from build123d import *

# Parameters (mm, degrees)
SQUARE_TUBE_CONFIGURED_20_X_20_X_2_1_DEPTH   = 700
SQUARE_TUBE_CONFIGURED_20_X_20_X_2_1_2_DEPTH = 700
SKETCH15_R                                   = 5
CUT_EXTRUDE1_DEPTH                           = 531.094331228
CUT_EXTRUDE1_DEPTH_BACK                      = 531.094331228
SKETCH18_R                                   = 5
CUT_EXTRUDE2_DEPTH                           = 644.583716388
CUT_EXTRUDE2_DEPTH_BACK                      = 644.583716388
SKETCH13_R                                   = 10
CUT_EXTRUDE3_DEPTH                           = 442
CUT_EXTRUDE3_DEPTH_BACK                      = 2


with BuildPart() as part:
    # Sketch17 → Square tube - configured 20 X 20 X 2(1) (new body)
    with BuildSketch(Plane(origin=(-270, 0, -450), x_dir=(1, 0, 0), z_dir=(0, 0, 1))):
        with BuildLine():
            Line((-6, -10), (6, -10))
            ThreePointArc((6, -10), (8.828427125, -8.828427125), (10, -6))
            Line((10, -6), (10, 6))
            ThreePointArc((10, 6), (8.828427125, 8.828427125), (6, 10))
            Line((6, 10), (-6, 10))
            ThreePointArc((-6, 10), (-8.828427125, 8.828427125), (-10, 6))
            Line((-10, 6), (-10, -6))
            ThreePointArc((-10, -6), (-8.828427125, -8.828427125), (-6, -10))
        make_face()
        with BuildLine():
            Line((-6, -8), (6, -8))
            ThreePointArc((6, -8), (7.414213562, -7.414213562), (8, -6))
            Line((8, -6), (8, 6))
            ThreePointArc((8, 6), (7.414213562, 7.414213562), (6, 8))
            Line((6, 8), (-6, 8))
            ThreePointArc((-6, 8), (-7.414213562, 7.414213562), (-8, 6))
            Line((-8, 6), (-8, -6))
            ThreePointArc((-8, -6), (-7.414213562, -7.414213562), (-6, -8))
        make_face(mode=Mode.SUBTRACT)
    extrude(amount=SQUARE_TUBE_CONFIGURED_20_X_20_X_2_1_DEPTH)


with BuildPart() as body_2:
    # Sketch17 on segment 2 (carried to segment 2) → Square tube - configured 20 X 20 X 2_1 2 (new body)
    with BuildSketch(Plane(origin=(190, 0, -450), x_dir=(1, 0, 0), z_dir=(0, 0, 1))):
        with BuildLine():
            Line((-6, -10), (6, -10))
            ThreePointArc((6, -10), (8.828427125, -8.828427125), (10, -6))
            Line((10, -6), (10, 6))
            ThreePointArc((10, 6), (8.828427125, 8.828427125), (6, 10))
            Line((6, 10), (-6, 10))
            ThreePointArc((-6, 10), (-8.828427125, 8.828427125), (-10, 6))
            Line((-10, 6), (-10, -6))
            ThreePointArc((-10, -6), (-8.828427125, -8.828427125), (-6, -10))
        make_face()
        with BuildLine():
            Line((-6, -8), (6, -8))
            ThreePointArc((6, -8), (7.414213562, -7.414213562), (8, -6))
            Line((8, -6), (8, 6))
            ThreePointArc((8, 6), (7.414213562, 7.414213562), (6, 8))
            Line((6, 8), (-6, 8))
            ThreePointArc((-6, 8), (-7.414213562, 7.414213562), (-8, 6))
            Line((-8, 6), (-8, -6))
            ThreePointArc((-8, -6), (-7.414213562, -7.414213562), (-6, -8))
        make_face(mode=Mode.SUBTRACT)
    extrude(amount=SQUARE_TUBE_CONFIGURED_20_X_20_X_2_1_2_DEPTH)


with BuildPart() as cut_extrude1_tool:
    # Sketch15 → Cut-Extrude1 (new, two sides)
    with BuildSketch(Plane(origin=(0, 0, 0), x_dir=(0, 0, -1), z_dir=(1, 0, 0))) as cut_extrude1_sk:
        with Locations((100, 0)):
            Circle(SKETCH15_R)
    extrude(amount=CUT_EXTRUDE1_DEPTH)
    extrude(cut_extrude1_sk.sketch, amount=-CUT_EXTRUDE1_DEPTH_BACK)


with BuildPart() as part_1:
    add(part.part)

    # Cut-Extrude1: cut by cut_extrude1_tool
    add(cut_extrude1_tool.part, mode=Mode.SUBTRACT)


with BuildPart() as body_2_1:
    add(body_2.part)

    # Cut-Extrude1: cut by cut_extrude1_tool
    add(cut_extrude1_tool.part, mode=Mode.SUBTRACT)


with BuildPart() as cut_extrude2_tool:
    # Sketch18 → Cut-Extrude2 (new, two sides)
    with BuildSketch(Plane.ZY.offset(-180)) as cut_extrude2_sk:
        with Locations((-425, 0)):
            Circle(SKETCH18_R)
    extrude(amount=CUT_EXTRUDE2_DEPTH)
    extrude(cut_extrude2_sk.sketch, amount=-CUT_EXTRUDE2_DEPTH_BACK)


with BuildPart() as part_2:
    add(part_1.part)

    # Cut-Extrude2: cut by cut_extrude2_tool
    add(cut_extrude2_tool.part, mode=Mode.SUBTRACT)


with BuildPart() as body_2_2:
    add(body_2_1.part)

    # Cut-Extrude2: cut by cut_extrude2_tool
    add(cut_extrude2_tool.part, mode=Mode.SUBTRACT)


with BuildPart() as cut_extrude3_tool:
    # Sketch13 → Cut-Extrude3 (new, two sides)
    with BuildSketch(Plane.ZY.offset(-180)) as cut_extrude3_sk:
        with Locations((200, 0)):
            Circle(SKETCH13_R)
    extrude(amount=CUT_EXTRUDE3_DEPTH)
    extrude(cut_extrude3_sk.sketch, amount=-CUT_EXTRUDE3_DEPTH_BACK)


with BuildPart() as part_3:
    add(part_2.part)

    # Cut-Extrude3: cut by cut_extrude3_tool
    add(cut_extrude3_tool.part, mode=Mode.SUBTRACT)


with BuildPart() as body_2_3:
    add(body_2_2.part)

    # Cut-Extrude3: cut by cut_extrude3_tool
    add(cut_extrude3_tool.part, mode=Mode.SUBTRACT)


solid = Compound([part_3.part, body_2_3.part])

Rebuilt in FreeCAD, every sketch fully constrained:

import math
import FreeCAD as App
import Part
import Sketcher
Q = App.Units.Quantity

doc = App.newDocument("Part")
body = doc.addObject("PartDesign::Body", "Body")

# Sketch on XY plane
sketch1 = body.newObject("Sketcher::SketchObject", "Sketch")
sketch1.AttachmentSupport = (doc.getObject("XY_Plane"), [""])
sketch1.MapMode = "FlatFace"
sketch1.AttachmentOffset = App.Placement(App.Vector(0, 0, -450), App.Rotation())
sketch1.addGeometry([
    Part.LineSegment(App.Vector(-276, -10, 0), App.Vector(-264, -10, 0)),  # 0
    Part.ArcOfCircle(Part.Circle(App.Vector(-264, -6, 0), App.Vector(0, 0, 1), 4), math.radians(-90), math.radians(0)),  # 1
    Part.LineSegment(App.Vector(-260, -6, 0), App.Vector(-260, 6, 0)),  # 2
    Part.ArcOfCircle(Part.Circle(App.Vector(-264, 6, 0), App.Vector(0, 0, 1), 4), math.radians(0), math.radians(90)),  # 3
    Part.LineSegment(App.Vector(-264, 10, 0), App.Vector(-276, 10, 0)),  # 4
    Part.ArcOfCircle(Part.Circle(App.Vector(-276, 6, 0), App.Vector(0, 0, 1), 4), math.radians(90), math.radians(180)),  # 5
    Part.LineSegment(App.Vector(-280, 6, 0), App.Vector(-280, -6, 0)),  # 6
    Part.ArcOfCircle(Part.Circle(App.Vector(-276, -6, 0), App.Vector(0, 0, 1), 4), math.radians(180), math.radians(270)),  # 7
    Part.LineSegment(App.Vector(-264, -8, 0), App.Vector(-276, -8, 0)),  # 8
    Part.ArcOfCircle(Part.Circle(App.Vector(-276, -6, 0), App.Vector(0, 0, 1), 2), math.radians(-180), math.radians(-90)),  # 9
    Part.LineSegment(App.Vector(-278, -6, 0), App.Vector(-278, 6, 0)),  # 10
    Part.ArcOfCircle(Part.Circle(App.Vector(-276, 6, 0), App.Vector(0, 0, 1), 2), math.radians(90), math.radians(180)),  # 11
    Part.LineSegment(App.Vector(-276, 8, 0), App.Vector(-264, 8, 0)),  # 12
    Part.ArcOfCircle(Part.Circle(App.Vector(-264, 6, 0), App.Vector(0, 0, 1), 2), math.radians(0), math.radians(90)),  # 13
    Part.LineSegment(App.Vector(-262, 6, 0), App.Vector(-262, -6, 0)),  # 14
    Part.ArcOfCircle(Part.Circle(App.Vector(-264, -6, 0), App.Vector(0, 0, 1), 2), math.radians(-90), math.radians(0)),  # 15
], False)
sketch1.addConstraint([
    Sketcher.Constraint("Tangent", 0, 2, 1, 1),
    Sketcher.Constraint("Tangent", 1, 2, 2, 1),
    Sketcher.Constraint("Tangent", 2, 2, 3, 1),
    Sketcher.Constraint("Tangent", 3, 2, 4, 1),
    Sketcher.Constraint("Tangent", 4, 2, 5, 1),
    Sketcher.Constraint("Tangent", 5, 2, 6, 1),
    Sketcher.Constraint("Tangent", 6, 2, 7, 1),
    Sketcher.Constraint("Tangent", 7, 2, 0, 1),
    Sketcher.Constraint("Tangent", 8, 2, 9, 2),
    Sketcher.Constraint("Tangent", 9, 1, 10, 1),
    Sketcher.Constraint("Tangent", 10, 2, 11, 2),
    Sketcher.Constraint("Tangent", 11, 1, 12, 1),
    Sketcher.Constraint("Tangent", 12, 2, 13, 2),
    Sketcher.Constraint("Tangent", 13, 1, 14, 1),
    Sketcher.Constraint("Tangent", 14, 2, 15, 2),
    Sketcher.Constraint("Tangent", 15, 1, 8, 1),
    Sketcher.Constraint("Horizontal", 0),
    Sketcher.Constraint("Vertical", 2),
    Sketcher.Constraint("Horizontal", 4),
    Sketcher.Constraint("Vertical", 6),
    Sketcher.Constraint("Horizontal", 8),
    Sketcher.Constraint("Vertical", 10),
    Sketcher.Constraint("Horizontal", 12),
    Sketcher.Constraint("Vertical", 14),
    Sketcher.Constraint("Coincident", 9, 3, 7, 3),
    Sketcher.Constraint("Coincident", 11, 3, 5, 3),
    Sketcher.Constraint("Coincident", 13, 3, 3, 3),
    Sketcher.Constraint("Equal", 1, 3),
    Sketcher.Constraint("Equal", 3, 5),
    Sketcher.Constraint("Equal", 5, 7),
    Sketcher.Constraint("Equal", 13, 15),
    Sketcher.Constraint("Equal", 12, 2),
    Sketcher.Constraint("Radius", 1, Q("4 mm")),
    Sketcher.Constraint("Radius", 9, Q("2 mm")),
    Sketcher.Constraint("DistanceX", 0, 1, 0, 2, Q("12 mm")),
    Sketcher.Constraint("DistanceX", 1, 3, -1, 1, Q("264 mm")),
    Sketcher.Constraint("DistanceY", 1, 3, -1, 1, Q("6 mm")),
])
pad1 = body.newObject("PartDesign::Pad", "Pad")
pad1.Profile = sketch1
pad1.Length = 700
body2 = doc.addObject("PartDesign::Body", "Body001")

# Sketch on XY plane
sketch2 = body2.newObject("Sketcher::SketchObject", "Sketch001")
sketch2.AttachmentSupport = (doc.getObject("XY_Plane001"), [""])
sketch2.MapMode = "FlatFace"
sketch2.AttachmentOffset = App.Placement(App.Vector(0, 0, -450), App.Rotation())
sketch2.addGeometry([
    Part.LineSegment(App.Vector(184, -10, 0), App.Vector(196, -10, 0)),  # 0
    Part.ArcOfCircle(Part.Circle(App.Vector(196, -6, 0), App.Vector(0, 0, 1), 4), math.radians(-90), math.radians(0)),  # 1
    Part.LineSegment(App.Vector(200, -6, 0), App.Vector(200, 6, 0)),  # 2
    Part.ArcOfCircle(Part.Circle(App.Vector(196, 6, 0), App.Vector(0, 0, 1), 4), math.radians(0), math.radians(90)),  # 3
    Part.LineSegment(App.Vector(196, 10, 0), App.Vector(184, 10, 0)),  # 4
    Part.ArcOfCircle(Part.Circle(App.Vector(184, 6, 0), App.Vector(0, 0, 1), 4), math.radians(90), math.radians(180)),  # 5
    Part.LineSegment(App.Vector(180, 6, 0), App.Vector(180, -6, 0)),  # 6
    Part.ArcOfCircle(Part.Circle(App.Vector(184, -6, 0), App.Vector(0, 0, 1), 4), math.radians(180), math.radians(270)),  # 7
    Part.LineSegment(App.Vector(196, -8, 0), App.Vector(184, -8, 0)),  # 8
    Part.ArcOfCircle(Part.Circle(App.Vector(184, -6, 0), App.Vector(0, 0, 1), 2), math.radians(-180), math.radians(-90)),  # 9
    Part.LineSegment(App.Vector(182, -6, 0), App.Vector(182, 6, 0)),  # 10
    Part.ArcOfCircle(Part.Circle(App.Vector(184, 6, 0), App.Vector(0, 0, 1), 2), math.radians(90), math.radians(180)),  # 11
    Part.LineSegment(App.Vector(184, 8, 0), App.Vector(196, 8, 0)),  # 12
    Part.ArcOfCircle(Part.Circle(App.Vector(196, 6, 0), App.Vector(0, 0, 1), 2), math.radians(0), math.radians(90)),  # 13
    Part.LineSegment(App.Vector(198, 6, 0), App.Vector(198, -6, 0)),  # 14
    Part.ArcOfCircle(Part.Circle(App.Vector(196, -6, 0), App.Vector(0, 0, 1), 2), math.radians(-90), math.radians(0)),  # 15
], False)
sketch2.addConstraint([
    Sketcher.Constraint("Tangent", 0, 2, 1, 1),
    Sketcher.Constraint("Tangent", 1, 2, 2, 1),
    Sketcher.Constraint("Tangent", 2, 2, 3, 1),
    Sketcher.Constraint("Tangent", 3, 2, 4, 1),
    Sketcher.Constraint("Tangent", 4, 2, 5, 1),
    Sketcher.Constraint("Tangent", 5, 2, 6, 1),
    Sketcher.Constraint("Tangent", 6, 2, 7, 1),
    Sketcher.Constraint("Tangent", 7, 2, 0, 1),
    Sketcher.Constraint("Tangent", 8, 2, 9, 2),
    Sketcher.Constraint("Tangent", 9, 1, 10, 1),
    Sketcher.Constraint("Tangent", 10, 2, 11, 2),
    Sketcher.Constraint("Tangent", 11, 1, 12, 1),
    Sketcher.Constraint("Tangent", 12, 2, 13, 2),
    Sketcher.Constraint("Tangent", 13, 1, 14, 1),
    Sketcher.Constraint("Tangent", 14, 2, 15, 2),
    Sketcher.Constraint("Tangent", 15, 1, 8, 1),
    Sketcher.Constraint("Horizontal", 0),
    Sketcher.Constraint("Vertical", 2),
    Sketcher.Constraint("Horizontal", 4),
    Sketcher.Constraint("Vertical", 6),
    Sketcher.Constraint("Horizontal", 8),
    Sketcher.Constraint("Vertical", 10),
    Sketcher.Constraint("Horizontal", 12),
    Sketcher.Constraint("Vertical", 14),
    Sketcher.Constraint("Coincident", 9, 3, 7, 3),
    Sketcher.Constraint("Coincident", 11, 3, 5, 3),
    Sketcher.Constraint("Coincident", 13, 3, 3, 3),
    Sketcher.Constraint("Equal", 1, 3),
    Sketcher.Constraint("Equal", 3, 5),
    Sketcher.Constraint("Equal", 5, 7),
    Sketcher.Constraint("Equal", 13, 15),
    Sketcher.Constraint("Equal", 12, 2),
    Sketcher.Constraint("Radius", 1, Q("4 mm")),
    Sketcher.Constraint("Radius", 9, Q("2 mm")),
    Sketcher.Constraint("DistanceX", 0, 1, 0, 2, Q("12 mm")),
    Sketcher.Constraint("DistanceX", -1, 1, 1, 3, Q("196 mm")),
    Sketcher.Constraint("DistanceY", 1, 3, -1, 1, Q("6 mm")),
])
pad2 = body2.newObject("PartDesign::Pad", "Pad001")
pad2.Profile = sketch2
pad2.Length = 700
body3 = doc.addObject("PartDesign::Body", "Body002")

# Sketch on YZ plane
sketch3 = body3.newObject("Sketcher::SketchObject", "Sketch002")
sketch3.AttachmentSupport = (doc.getObject("YZ_Plane002"), [""])
sketch3.MapMode = "FlatFace"
sketch3.addGeometry(Part.Circle(App.Vector(0, -100, 0), App.Vector(0, 0, 1), 5), False)
sketch3.addConstraint([
    Sketcher.Constraint("PointOnObject", 0, 3, -2),
    Sketcher.Constraint("Diameter", 0, Q("10 mm")),
    Sketcher.Constraint("DistanceY", 0, 3, -1, 1, Q("100 mm")),
])
pad3 = body3.newObject("PartDesign::Pad", "Pad002")
pad3.Profile = sketch3
pad3.Type = "TwoLengths"
pad3.Length = 531.094331
pad3.Length2 = 531.094331
doc.recompute()

body4 = doc.addObject("PartDesign::Body", "Body003")
body4.BaseFeature = body3
boolean = body.newObject("PartDesign::Boolean", "Boolean")
boolean.Type = "Cut"
boolean.addObjects([body4])
doc.recompute()

boolean2 = body2.newObject("PartDesign::Boolean", "Boolean001")
boolean2.Type = "Cut"
boolean2.addObjects([body3])
body5 = doc.addObject("PartDesign::Body", "Body004")

# Sketch on YZ plane
sketch4 = body5.newObject("Sketcher::SketchObject", "Sketch003")
sketch4.AttachmentSupport = (doc.getObject("YZ_Plane004"), [""])
sketch4.MapMode = "FlatFace"
sketch4.AttachmentOffset = App.Placement(App.Vector(0, 0, 180), App.Rotation())
sketch4.addGeometry(Part.Circle(App.Vector(0, -425, 0), App.Vector(0, 0, 1), 5), False)
sketch4.addConstraint([
    Sketcher.Constraint("PointOnObject", 0, 3, -2),
    Sketcher.Constraint("Diameter", 0, Q("10 mm")),
    Sketcher.Constraint("DistanceY", 0, 3, -1, 1, Q("425 mm")),
])
pad4 = body5.newObject("PartDesign::Pad", "Pad003")
pad4.Profile = sketch4
pad4.Type = "TwoLengths"
pad4.Length = 644.583716
pad4.Length2 = 644.583716
pad4.Reversed = True
doc.recompute()

body6 = doc.addObject("PartDesign::Body", "Body005")
body6.BaseFeature = body5
boolean3 = body.newObject("PartDesign::Boolean", "Boolean002")
boolean3.Type = "Cut"
boolean3.addObjects([body6])
doc.recompute()

boolean4 = body2.newObject("PartDesign::Boolean", "Boolean003")
boolean4.Type = "Cut"
boolean4.addObjects([body5])
body7 = doc.addObject("PartDesign::Body", "Body006")

# Sketch on YZ plane
sketch5 = body7.newObject("Sketcher::SketchObject", "Sketch004")
sketch5.AttachmentSupport = (doc.getObject("YZ_Plane006"), [""])
sketch5.MapMode = "FlatFace"
sketch5.AttachmentOffset = App.Placement(App.Vector(0, 0, 180), App.Rotation())
sketch5.addGeometry(Part.Circle(App.Vector(0, 200, 0), App.Vector(0, 0, 1), 10), False)
sketch5.addConstraint([
    Sketcher.Constraint("PointOnObject", 0, 3, -2),
    Sketcher.Constraint("Diameter", 0, Q("20 mm")),
    Sketcher.Constraint("DistanceY", -1, 1, 0, 3, Q("200 mm")),
])
pad5 = body7.newObject("PartDesign::Pad", "Pad004")
pad5.Profile = sketch5
pad5.Type = "TwoLengths"
pad5.Length = 442
pad5.Length2 = 2
pad5.Reversed = True
doc.recompute()

body8 = doc.addObject("PartDesign::Body", "Body007")
body8.BaseFeature = body7
boolean5 = body.newObject("PartDesign::Boolean", "Boolean004")
boolean5.Type = "Cut"
boolean5.addObjects([body8])
doc.recompute()

boolean6 = body2.newObject("PartDesign::Boolean", "Boolean005")
boolean6.Type = "Cut"
boolean6.addObjects([body7])

doc.recompute()
